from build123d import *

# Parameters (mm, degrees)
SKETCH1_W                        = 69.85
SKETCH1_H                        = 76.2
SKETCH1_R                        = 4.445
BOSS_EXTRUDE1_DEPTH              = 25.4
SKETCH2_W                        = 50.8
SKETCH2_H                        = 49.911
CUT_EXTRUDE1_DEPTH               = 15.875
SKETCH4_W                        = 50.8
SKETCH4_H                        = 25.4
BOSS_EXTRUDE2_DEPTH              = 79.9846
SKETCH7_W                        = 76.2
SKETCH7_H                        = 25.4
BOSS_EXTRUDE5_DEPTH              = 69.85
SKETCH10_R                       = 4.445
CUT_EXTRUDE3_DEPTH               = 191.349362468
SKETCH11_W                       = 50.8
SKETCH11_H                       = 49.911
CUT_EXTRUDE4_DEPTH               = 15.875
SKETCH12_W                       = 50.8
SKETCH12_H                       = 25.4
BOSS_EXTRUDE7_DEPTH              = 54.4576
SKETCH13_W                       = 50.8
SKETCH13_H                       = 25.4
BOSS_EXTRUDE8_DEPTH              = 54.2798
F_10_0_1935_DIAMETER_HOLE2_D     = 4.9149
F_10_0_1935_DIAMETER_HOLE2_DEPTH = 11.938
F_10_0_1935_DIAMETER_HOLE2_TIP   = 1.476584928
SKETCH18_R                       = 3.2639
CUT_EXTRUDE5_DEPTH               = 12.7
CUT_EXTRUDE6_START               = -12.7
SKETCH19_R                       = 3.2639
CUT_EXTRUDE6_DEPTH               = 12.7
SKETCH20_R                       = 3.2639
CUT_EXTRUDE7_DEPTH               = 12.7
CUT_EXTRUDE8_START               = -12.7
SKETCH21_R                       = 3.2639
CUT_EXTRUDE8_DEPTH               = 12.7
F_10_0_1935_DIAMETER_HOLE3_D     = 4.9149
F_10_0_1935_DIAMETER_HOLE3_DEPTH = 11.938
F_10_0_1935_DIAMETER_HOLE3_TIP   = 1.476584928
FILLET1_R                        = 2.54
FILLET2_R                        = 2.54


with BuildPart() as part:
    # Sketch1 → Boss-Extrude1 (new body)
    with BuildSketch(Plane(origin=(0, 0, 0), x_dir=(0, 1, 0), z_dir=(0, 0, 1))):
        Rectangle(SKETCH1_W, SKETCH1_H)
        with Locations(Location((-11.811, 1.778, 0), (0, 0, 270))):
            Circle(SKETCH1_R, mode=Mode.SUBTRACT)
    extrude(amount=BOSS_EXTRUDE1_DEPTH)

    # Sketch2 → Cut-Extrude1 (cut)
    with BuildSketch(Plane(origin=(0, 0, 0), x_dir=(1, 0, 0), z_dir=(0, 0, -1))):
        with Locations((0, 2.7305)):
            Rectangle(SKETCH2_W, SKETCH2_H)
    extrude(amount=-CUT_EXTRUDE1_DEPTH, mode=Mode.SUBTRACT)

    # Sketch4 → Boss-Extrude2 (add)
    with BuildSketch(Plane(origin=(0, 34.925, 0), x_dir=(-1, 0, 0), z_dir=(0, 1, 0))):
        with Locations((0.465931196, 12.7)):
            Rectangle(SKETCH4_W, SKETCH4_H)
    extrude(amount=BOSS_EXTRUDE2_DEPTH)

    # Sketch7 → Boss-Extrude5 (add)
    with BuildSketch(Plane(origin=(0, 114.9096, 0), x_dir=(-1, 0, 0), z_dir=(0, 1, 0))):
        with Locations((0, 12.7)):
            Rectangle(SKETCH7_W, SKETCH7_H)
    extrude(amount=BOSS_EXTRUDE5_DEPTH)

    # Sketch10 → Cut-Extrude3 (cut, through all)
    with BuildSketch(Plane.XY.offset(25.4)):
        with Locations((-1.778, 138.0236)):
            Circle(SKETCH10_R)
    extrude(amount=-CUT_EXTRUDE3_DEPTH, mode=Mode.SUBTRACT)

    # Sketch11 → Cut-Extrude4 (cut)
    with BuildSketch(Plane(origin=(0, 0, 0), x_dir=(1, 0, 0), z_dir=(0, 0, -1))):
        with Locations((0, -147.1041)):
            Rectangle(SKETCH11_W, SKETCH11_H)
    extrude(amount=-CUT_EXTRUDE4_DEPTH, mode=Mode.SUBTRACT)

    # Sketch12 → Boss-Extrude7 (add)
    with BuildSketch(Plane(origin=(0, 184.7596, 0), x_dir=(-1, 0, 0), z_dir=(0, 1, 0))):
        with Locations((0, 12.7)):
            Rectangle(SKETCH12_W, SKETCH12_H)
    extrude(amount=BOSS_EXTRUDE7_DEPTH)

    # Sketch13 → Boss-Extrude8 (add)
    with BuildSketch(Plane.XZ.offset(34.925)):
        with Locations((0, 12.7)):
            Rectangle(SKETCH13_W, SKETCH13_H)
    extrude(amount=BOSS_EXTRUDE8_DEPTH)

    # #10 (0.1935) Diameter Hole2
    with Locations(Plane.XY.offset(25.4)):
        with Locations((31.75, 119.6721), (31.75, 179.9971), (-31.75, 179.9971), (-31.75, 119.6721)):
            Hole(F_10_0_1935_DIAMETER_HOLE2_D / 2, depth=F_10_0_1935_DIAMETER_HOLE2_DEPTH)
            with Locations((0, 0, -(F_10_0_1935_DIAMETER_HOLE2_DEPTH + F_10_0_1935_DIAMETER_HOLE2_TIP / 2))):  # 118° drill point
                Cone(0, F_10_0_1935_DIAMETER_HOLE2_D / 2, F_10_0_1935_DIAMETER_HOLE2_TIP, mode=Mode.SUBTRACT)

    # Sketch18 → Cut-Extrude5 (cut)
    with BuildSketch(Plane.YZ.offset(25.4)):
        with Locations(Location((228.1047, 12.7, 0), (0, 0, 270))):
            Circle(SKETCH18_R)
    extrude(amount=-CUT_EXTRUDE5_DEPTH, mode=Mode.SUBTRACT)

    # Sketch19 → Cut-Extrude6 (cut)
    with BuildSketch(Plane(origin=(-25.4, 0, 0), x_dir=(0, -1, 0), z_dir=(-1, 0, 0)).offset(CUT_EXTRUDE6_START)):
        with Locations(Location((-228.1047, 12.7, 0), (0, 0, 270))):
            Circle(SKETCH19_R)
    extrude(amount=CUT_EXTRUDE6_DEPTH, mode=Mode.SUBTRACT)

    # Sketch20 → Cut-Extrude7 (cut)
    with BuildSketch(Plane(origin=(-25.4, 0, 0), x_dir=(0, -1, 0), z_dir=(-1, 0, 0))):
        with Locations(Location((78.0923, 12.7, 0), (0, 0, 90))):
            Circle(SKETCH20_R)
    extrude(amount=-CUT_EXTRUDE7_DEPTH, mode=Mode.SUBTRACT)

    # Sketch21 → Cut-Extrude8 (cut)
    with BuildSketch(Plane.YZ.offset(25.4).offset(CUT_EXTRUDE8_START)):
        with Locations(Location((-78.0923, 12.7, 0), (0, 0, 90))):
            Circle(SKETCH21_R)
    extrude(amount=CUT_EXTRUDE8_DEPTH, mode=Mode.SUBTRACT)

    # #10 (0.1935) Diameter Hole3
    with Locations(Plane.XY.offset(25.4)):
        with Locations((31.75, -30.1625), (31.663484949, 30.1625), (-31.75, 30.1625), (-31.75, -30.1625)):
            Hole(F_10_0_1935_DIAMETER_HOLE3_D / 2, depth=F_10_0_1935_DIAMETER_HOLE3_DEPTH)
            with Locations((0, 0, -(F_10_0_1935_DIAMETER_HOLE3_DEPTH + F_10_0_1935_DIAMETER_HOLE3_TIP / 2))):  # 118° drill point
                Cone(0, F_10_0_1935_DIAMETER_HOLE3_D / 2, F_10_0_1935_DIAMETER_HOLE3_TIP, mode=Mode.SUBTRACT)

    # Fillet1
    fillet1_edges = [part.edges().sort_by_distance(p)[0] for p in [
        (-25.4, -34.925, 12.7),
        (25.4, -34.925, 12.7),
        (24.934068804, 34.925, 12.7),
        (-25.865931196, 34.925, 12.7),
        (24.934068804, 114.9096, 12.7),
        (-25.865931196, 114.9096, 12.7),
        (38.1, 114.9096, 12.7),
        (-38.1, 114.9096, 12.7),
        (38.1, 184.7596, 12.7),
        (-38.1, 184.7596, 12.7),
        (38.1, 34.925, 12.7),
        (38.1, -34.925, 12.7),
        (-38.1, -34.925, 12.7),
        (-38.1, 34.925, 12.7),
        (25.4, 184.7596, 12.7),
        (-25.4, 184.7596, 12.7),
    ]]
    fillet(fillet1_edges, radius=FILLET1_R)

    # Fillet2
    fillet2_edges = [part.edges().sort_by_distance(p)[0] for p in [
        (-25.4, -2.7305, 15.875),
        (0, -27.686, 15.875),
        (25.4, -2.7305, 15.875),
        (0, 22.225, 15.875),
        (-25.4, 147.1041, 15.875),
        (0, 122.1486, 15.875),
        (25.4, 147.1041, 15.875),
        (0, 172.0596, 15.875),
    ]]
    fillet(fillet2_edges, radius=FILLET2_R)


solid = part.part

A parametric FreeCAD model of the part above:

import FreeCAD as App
import Part
import Sketcher

V = App.Vector
Q = App.Units.Quantity


def edges_at(feature, points):
    """Names of the edges that pass closest to the given points."""
    edges = feature.Shape.Edges
    near = lambda p: min(range(len(edges)), key=lambda i: edges[i].distToShape(Part.Vertex(*p))[0])
    return sorted({f"Edge{near(p) + 1}" for p in points})


def add_polygon(sketch, points):
    """Adds a closed chain of lines whose ends are joined by coincident constraints."""
    first, n = sketch.GeometryCount, len(points)
    for a, b in zip(points, points[1:] + points[:1]):
        sketch.addGeometry(Part.LineSegment(App.Vector(*a, 0), App.Vector(*b, 0)), False)
    for i in range(n):
        sketch.addConstraint(Sketcher.Constraint("Coincident", first + i, 2, first + (i + 1) % n, 1))

doc = App.newDocument("Part")
body = doc.addObject("PartDesign::Body", "Body")

# Sketch on XY plane
sketch1 = doc.addObject("Sketcher::SketchObject", "Sketch")
body.addObject(sketch1)
sketch1.AttachmentSupport = (doc.XY_Plane, [""])
sketch1.MapMode = "FlatFace"
add_polygon(sketch1, [(-38.1, -34.925), (38.1, -34.925), (38.1, 34.925), (-38.1, 34.925)])  # lines 0-3
sketch1.addGeometry(Part.Circle(V(-1.778, -11.811, 0), V(0, 0, 1), 4.445), False)  # 4
sketch1.addConstraint([
    Sketcher.Constraint("Horizontal", 0),
    Sketcher.Constraint("Vertical", 1),
    Sketcher.Constraint("Horizontal", 2),
    Sketcher.Constraint("Vertical", 3),
    Sketcher.Constraint("Symmetric", 0, 2, 2, 2, -1, 1),
    Sketcher.Constraint("Diameter", 4, Q("0.35 in")),
    Sketcher.Constraint("DistanceX", 0, 1, 0, 2, Q("3 in")),
    Sketcher.Constraint("DistanceY", 1, 1, 1, 2, Q("2.75 in")),
    Sketcher.Constraint("DistanceX", 4, 3, -1, 1, Q("0.07 in")),
    Sketcher.Constraint("DistanceY", 0, 2, 4, 3, Q("0.91 in")),
])
pad1 = doc.addObject("PartDesign::Pad", "Pad")
body.addObject(pad1)
pad1.Profile = sketch1
pad1.Length = Q("1 in")

# Sketch on XY plane
sketch2 = doc.addObject("Sketcher::SketchObject", "Sketch001")
body.addObject(sketch2)
sketch2.AttachmentSupport = (doc.XY_Plane, [""])
sketch2.MapMode = "FlatFace"
add_polygon(sketch2, [(-25.4, -27.686), (-25.4, 22.225), (25.4, 22.225), (25.4, -27.686)])  # lines 0-3
sketch2.addConstraint([
    Sketcher.Constraint("Vertical", 0),
    Sketcher.Constraint("Horizontal", 1),
    Sketcher.Constraint("Vertical", 2),
    Sketcher.Constraint("Horizontal", 3),
    Sketcher.Constraint("DistanceX", 1, 1, 1, 2, Q("2 in")),
    Sketcher.Constraint("DistanceX", 0, 2, -1, 1, Q("1 in")),
    Sketcher.Constraint("DistanceY", 0, 1, 0, 2, Q("1.965 in")),
    Sketcher.Constraint("DistanceY", 2, 2, -1, 1, Q("1.09 in")),
])
pocket1 = doc.addObject("PartDesign::Pocket", "Pocket")
body.addObject(pocket1)
pocket1.Profile = sketch2
pocket1.Length = Q("0.625 in")
pocket1.Reversed = True

# Sketch on XZ plane
sketch3 = doc.addObject("Sketcher::SketchObject", "Sketch002")
body.addObject(sketch3)
sketch3.AttachmentSupport = (doc.XZ_Plane, [""])
sketch3.MapMode = "FlatFace"
sketch3.AttachmentOffset = App.Placement(V(0, 0, -1.375 * 25.4), App.Rotation())
add_polygon(sketch3, [(24.934069, 25.4), (24.934069, 0), (-25.865931, 0), (-25.865931, 25.4)])  # lines 0-3
sketch3.addConstraint([
    Sketcher.Constraint("Vertical", 0),
    Sketcher.Constraint("Horizontal", 1),
    Sketcher.Constraint("Vertical", 2),
    Sketcher.Constraint("Horizontal", 3),
    Sketcher.Constraint("PointOnObject", 0, 2, -1),
    Sketcher.Constraint("DistanceX", 1, 2, 1, 1, Q("2 in")),
    Sketcher.Constraint("DistanceY", 0, 2, 0, 1, Q("1 in")),
    Sketcher.Constraint("DistanceX", -1, 1, 0, 2, 24.934069),
])
pad2 = doc.addObject("PartDesign::Pad", "Pad001")
body.addObject(pad2)
pad2.Profile = sketch3
pad2.Length = Q("3.149 in")
pad2.Reversed = True

# Sketch on XZ plane
sketch4 = doc.addObject("Sketcher::SketchObject", "Sketch003")
body.addObject(sketch4)
sketch4.AttachmentSupport = (doc.XZ_Plane, [""])
sketch4.MapMode = "FlatFace"
sketch4.AttachmentOffset = App.Placement(V(0, 0, -4.524 * 25.4), App.Rotation())
add_polygon(sketch4, [(38.1, 25.4), (38.1, 0), (-38.1, 0), (-38.1, 25.4)])  # lines 0-3
sketch4.addConstraint([
    Sketcher.Constraint("Vertical", 0),
    Sketcher.Constraint("Horizontal", 1),
    Sketcher.Constraint("Vertical", 2),
    Sketcher.Constraint("Horizontal", 3),
    Sketcher.Constraint("Symmetric", 0, 2, 1, 2, -1, 1),
    Sketcher.Constraint("DistanceX", 1, 2, 1, 1, Q("3 in")),
    Sketcher.Constraint("DistanceY", 0, 2, 0, 1, Q("1 in")),
])
pad3 = doc.addObject("PartDesign::Pad", "Pad002")
body.addObject(pad3)
pad3.Profile = sketch4
pad3.Length = Q("2.75 in")
pad3.Reversed = True

# Sketch on XY plane
sketch5 = doc.addObject("Sketcher::SketchObject", "Sketch004")
body.addObject(sketch5)
sketch5.AttachmentSupport = (doc.XY_Plane, [""])
sketch5.MapMode = "FlatFace"
sketch5.AttachmentOffset = App.Placement(V(0, 0, 1 * 25.4), App.Rotation())
sketch5.addGeometry(Part.Circle(V(-1.778, 138.0236, 0), V(0, 0, 1), 4.445), False)
sketch5.addConstraint([
    Sketcher.Constraint("Diameter", 0, Q("0.35 in")),
    Sketcher.Constraint("DistanceX", 0, 3, -1, 1, Q("0.07 in")),
    Sketcher.Constraint("DistanceY", -1, 1, 0, 3, Q("5.434 in")),
])
pocket2 = doc.addObject("PartDesign::Pocket", "Pocket001")
body.addObject(pocket2)
pocket2.Profile = sketch5
pocket2.Type = "ThroughAll"

# Sketch on XY plane
sketch6 = doc.addObject("Sketcher::SketchObject", "Sketch005")
body.addObject(sketch6)
sketch6.AttachmentSupport = (doc.XY_Plane, [""])
sketch6.MapMode = "FlatFace"
add_polygon(sketch6, [(-25.4, 122.1486), (-25.4, 172.0596), (25.4, 172.0596), (25.4, 122.1486)])  # lines 0-3
sketch6.addConstraint([
    Sketcher.Constraint("Vertical", 0),
    Sketcher.Constraint("Horizontal", 1),
    Sketcher.Constraint("Vertical", 2),
    Sketcher.Constraint("Horizontal", 3),
    Sketcher.Constraint("DistanceX", 1, 1, 1, 2, Q("2 in")),
    Sketcher.Constraint("DistanceX", 0, 2, -1, 1, Q("1 in")),
    Sketcher.Constraint("DistanceY", 0, 1, 0, 2, Q("1.965 in")),
    Sketcher.Constraint("DistanceY", -1, 1, 0, 2, Q("6.774 in")),
])
pocket3 = doc.addObject("PartDesign::Pocket", "Pocket002")
body.addObject(pocket3)
pocket3.Profile = sketch6
pocket3.Length = Q("0.625 in")
pocket3.Reversed = True

# Sketch on XZ plane
sketch7 = doc.addObject("Sketcher::SketchObject", "Sketch006")
body.addObject(sketch7)
sketch7.AttachmentSupport = (doc.XZ_Plane, [""])
sketch7.MapMode = "FlatFace"
sketch7.AttachmentOffset = App.Placement(V(0, 0, -7.274 * 25.4), App.Rotation())
add_polygon(sketch7, [(25.4, 25.4), (25.4, 0), (-25.4, 0), (-25.4, 25.4)])  # lines 0-3
sketch7.addConstraint([
    Sketcher.Constraint("Vertical", 0),
    Sketcher.Constraint("Horizontal", 1),
    Sketcher.Constraint("Vertical", 2),
    Sketcher.Constraint("Horizontal", 3),
    Sketcher.Constraint("Symmetric", 0, 2, 1, 2, -1, 1),
    Sketcher.Constraint("DistanceX", 1, 2, 1, 1, Q("2 in")),
    Sketcher.Constraint("DistanceY", 0, 2, 0, 1, Q("1 in")),
])
pad4 = doc.addObject("PartDesign::Pad", "Pad003")
body.addObject(pad4)
pad4.Profile = sketch7
pad4.Length = Q("2.144 in")
pad4.Reversed = True

# Sketch on XZ plane
sketch8 = doc.addObject("Sketcher::SketchObject", "Sketch007")
body.addObject(sketch8)
sketch8.AttachmentSupport = (doc.XZ_Plane, [""])
sketch8.MapMode = "FlatFace"
sketch8.AttachmentOffset = App.Placement(V(0, 0, 1.375 * 25.4), App.Rotation())
add_polygon(sketch8, [(-25.4, 25.4), (-25.4, 0), (25.4, 0), (25.4, 25.4)])  # lines 0-3
sketch8.addConstraint([
    Sketcher.Constraint("Vertical", 0),
    Sketcher.Constraint("Horizontal", 1),
    Sketcher.Constraint("Vertical", 2),
    Sketcher.Constraint("Horizontal", 3),
    Sketcher.Constraint("Symmetric", 0, 2, 1, 2, -1, 1),
    Sketcher.Constraint("DistanceX", 1, 1, 1, 2, Q("2 in")),
    Sketcher.Constraint("DistanceY", 0, 2, 0, 1, Q("1 in")),
])
pad5 = doc.addObject("PartDesign::Pad", "Pad004")
body.addObject(pad5)
pad5.Profile = sketch8
pad5.Length = Q("2.137 in")

# Sketch on XY plane
sketch9 = doc.addObject("Sketcher::SketchObject", "Sketch008")
body.addObject(sketch9)
sketch9.AttachmentSupport = (doc.XY_Plane, [""])
sketch9.MapMode = "FlatFace"
sketch9.AttachmentOffset = App.Placement(V(0, 0, 1 * 25.4), App.Rotation())
sketch9.addGeometry([
    Part.Circle(V(31.75, 119.6721, 0), V(0, 0, 1), 2.45745),
    Part.Circle(V(31.75, 179.9971, 0), V(0, 0, 1), 2.45745),
    Part.Circle(V(-31.75, 179.9971, 0), V(0, 0, 1), 2.45745),
    Part.Circle(V(-31.75, 119.6721, 0), V(0, 0, 1), 2.45745),
], False)
sketch9.addConstraint([
    Sketcher.Constraint("Equal", 0, 1),
    Sketcher.Constraint("Equal", 1, 2),
    Sketcher.Constraint("Equal", 2, 3),
    Sketcher.Constraint("Symmetric", 1, 3, 2, 3, -2),
    Sketcher.Constraint("Symmetric", 0, 3, 3, 3, -2),
    Sketcher.Constraint("Vertical", 0, 3, 1, 3),
    Sketcher.Constraint("Diameter", 0, Q("0.1935 in")),
    Sketcher.Constraint("DistanceX", 2, 3, 1, 3, Q("2.5 in")),
    Sketcher.Constraint("DistanceY", 0, 3, 1, 3, Q("2.375 in")),
    Sketcher.Constraint("DistanceY", -1, 1, 0, 3, Q("4.7115 in")),
])
doc.recompute()
hole = doc.addObject("PartDesign::Hole", "Hole")
body.addObject(hole)
hole.Profile = sketch9
hole.ThreadType = "None"
hole.Diameter = Q("0.1935 in")
hole.DepthType = "Dimension"
hole.Depth = Q("0.47 in")
hole.DrillPoint = "Angled"
hole.DrillPointAngle = 118

# Sketch on YZ plane
sketch10 = doc.addObject("Sketcher::SketchObject", "Sketch009")
body.addObject(sketch10)
sketch10.AttachmentSupport = (doc.YZ_Plane, [""])
sketch10.MapMode = "FlatFace"
sketch10.AttachmentOffset = App.Placement(V(0, 0, 1 * 25.4), App.Rotation())
sketch10.addGeometry(Part.Circle(V(228.1047, 12.7, 0), V(0, 0, 1), 3.2639), False)
sketch10.addConstraint([
    Sketcher.Constraint("Diameter", 0, Q("0.257 in")),
    Sketcher.Constraint("DistanceY", -1, 1, 0, 3, Q("0.5 in")),
    Sketcher.Constraint("DistanceX", -1, 1, 0, 3, Q("8.9805 in")),
])
pocket4 = doc.addObject("PartDesign::Pocket", "Pocket003")
body.addObject(pocket4)
pocket4.Profile = sketch10
pocket4.Length = Q("0.5 in")

# Sketch on YZ plane
sketch11 = doc.addObject("Sketcher::SketchObject", "Sketch010")
body.addObject(sketch11)
sketch11.AttachmentSupport = (doc.YZ_Plane, [""])
sketch11.MapMode = "FlatFace"
sketch11.AttachmentOffset = App.Placement(V(0, 0, -0.5 * 25.4), App.Rotation())
sketch11.addGeometry(Part.Circle(V(228.1047, 12.7, 0), V(0, 0, 1), 3.2639), False)
sketch11.addConstraint([
    Sketcher.Constraint("Diameter", 0, Q("0.257 in")),
    Sketcher.Constraint("DistanceY", -1, 1, 0, 3, Q("0.5 in")),
    Sketcher.Constraint("DistanceX", -1, 1, 0, 3, Q("8.9805 in")),
])
pocket5 = doc.addObject("PartDesign::Pocket", "Pocket004")
body.addObject(pocket5)
pocket5.Profile = sketch11
pocket5.Length = Q("0.5 in")

# Sketch on YZ plane
sketch12 = doc.addObject("Sketcher::SketchObject", "Sketch011")
body.addObject(sketch12)
sketch12.AttachmentSupport = (doc.YZ_Plane, [""])
sketch12.MapMode = "FlatFace"
sketch12.AttachmentOffset = App.Placement(V(0, 0, -1 * 25.4), App.Rotation())
sketch12.addGeometry(Part.Circle(V(-78.0923, 12.7, 0), V(0, 0, 1), 3.2639), False)
sketch12.addConstraint([
    Sketcher.Constraint("Diameter", 0, Q("0.257 in")),
    Sketcher.Constraint("DistanceY", -1, 1, 0, 3, Q("0.5 in")),
    Sketcher.Constraint("DistanceX", 0, 3, -1, 1, Q("3.0745 in")),
])
pocket6 = doc.addObject("PartDesign::Pocket", "Pocket005")
body.addObject(pocket6)
pocket6.Profile = sketch12
pocket6.Length = Q("0.5 in")
pocket6.Reversed = True

# Sketch on YZ plane
sketch13 = doc.addObject("Sketcher::SketchObject", "Sketch012")
body.addObject(sketch13)
sketch13.AttachmentSupport = (doc.YZ_Plane, [""])
sketch13.MapMode = "FlatFace"
sketch13.AttachmentOffset = App.Placement(V(0, 0, 0.5 * 25.4), App.Rotation())
sketch13.addGeometry(Part.Circle(V(-78.0923, 12.7, 0), V(0, 0, 1), 3.2639), False)
sketch13.addConstraint([
    Sketcher.Constraint("Diameter", 0, Q("0.257 in")),
    Sketcher.Constraint("DistanceY", -1, 1, 0, 3, Q("0.5 in")),
    Sketcher.Constraint("DistanceX", 0, 3, -1, 1, Q("3.0745 in")),
])
pocket7 = doc.addObject("PartDesign::Pocket", "Pocket006")
body.addObject(pocket7)
pocket7.Profile = sketch13
pocket7.Length = Q("0.5 in")
pocket7.Reversed = True

# Sketch on XY plane
sketch14 = doc.addObject("Sketcher::SketchObject", "Sketch013")
body.addObject(sketch14)
sketch14.AttachmentSupport = (doc.XY_Plane, [""])
sketch14.MapMode = "FlatFace"
sketch14.AttachmentOffset = App.Placement(V(0, 0, 1 * 25.4), App.Rotation())
sketch14.addGeometry([
    Part.Circle(V(31.75, -30.1625, 0), V(0, 0, 1), 2.45745),
    Part.Circle(V(31.663485, 30.1625, 0), V(0, 0, 1), 2.45745),
    Part.Circle(V(-31.75, 30.1625, 0), V(0, 0, 1), 2.45745),
    Part.Circle(V(-31.75, -30.1625, 0), V(0, 0, 1), 2.45745),
], False)
sketch14.addConstraint([
    Sketcher.Constraint("Equal", 0, 1),
    Sketcher.Constraint("Equal", 1, 2),
    Sketcher.Constraint("Equal", 2, 3),
    Sketcher.Constraint("Symmetric", 0, 3, 2, 3, -1, 1),
    Sketcher.Constraint("Symmetric", 0, 3, 3, 3, -2),
    Sketcher.Constraint("Horizontal", 1, 3, 2, 3),
    Sketcher.Constraint("Diameter", 0, Q("0.1935 in")),
    Sketcher.Constraint("DistanceX", 2, 3, 0, 3, Q("2.5 in")),
    Sketcher.Constraint("DistanceY", 0, 3, -1, 1, Q("1.1875 in")),
    Sketcher.Constraint("DistanceX", -1, 1, 1, 3, 31.663485),
])
doc.recompute()
hole2 = doc.addObject("PartDesign::Hole", "Hole001")
body.addObject(hole2)
hole2.Profile = sketch14
hole2.ThreadType = "None"
hole2.Diameter = Q("0.1935 in")
hole2.DepthType = "Dimension"
hole2.Depth = Q("0.47 in")
hole2.DrillPoint = "Angled"
hole2.DrillPointAngle = 118
doc.recompute()

fillet = doc.addObject("PartDesign::Fillet", "Fillet")
body.addObject(fillet)
fillet.Base = (hole2, edges_at(hole2, [
    (-25.4, -34.925, 12.7),
    (25.4, -34.925, 12.7),
    (24.934, 34.925, 12.7),
    (-25.866, 34.925, 12.7),
    (24.934, 114.91, 12.7),
    (-25.866, 114.91, 12.7),
    (38.1, 114.91, 12.7),
    (-38.1, 114.91, 12.7),
    (38.1, 184.76, 12.7),
    (-38.1, 184.76, 12.7),
    (38.1, 34.925, 12.7),
    (38.1, -34.925, 12.7),
    (-38.1, -34.925, 12.7),
    (-38.1, 34.925, 12.7),
    (25.4, 184.76, 12.7),
    (-25.4, 184.76, 12.7),
]))
fillet.Radius = Q("0.1 in")
doc.recompute()

fillet2 = doc.addObject("PartDesign::Fillet", "Fillet001")
body.addObject(fillet2)
fillet2.Base = (fillet, edges_at(fillet, [
    (-25.4, -2.731, 15.875),
    (0, -27.686, 15.875),
    (25.4, -2.731, 15.875),
    (0, 22.225, 15.875),
    (-25.4, 147.104, 15.875),
    (0, 122.149, 15.875),
    (25.4, 147.104, 15.875),
    (0, 172.06, 15.875),
]))
fillet2.Radius = Q("0.1 in")

doc.recompute()
